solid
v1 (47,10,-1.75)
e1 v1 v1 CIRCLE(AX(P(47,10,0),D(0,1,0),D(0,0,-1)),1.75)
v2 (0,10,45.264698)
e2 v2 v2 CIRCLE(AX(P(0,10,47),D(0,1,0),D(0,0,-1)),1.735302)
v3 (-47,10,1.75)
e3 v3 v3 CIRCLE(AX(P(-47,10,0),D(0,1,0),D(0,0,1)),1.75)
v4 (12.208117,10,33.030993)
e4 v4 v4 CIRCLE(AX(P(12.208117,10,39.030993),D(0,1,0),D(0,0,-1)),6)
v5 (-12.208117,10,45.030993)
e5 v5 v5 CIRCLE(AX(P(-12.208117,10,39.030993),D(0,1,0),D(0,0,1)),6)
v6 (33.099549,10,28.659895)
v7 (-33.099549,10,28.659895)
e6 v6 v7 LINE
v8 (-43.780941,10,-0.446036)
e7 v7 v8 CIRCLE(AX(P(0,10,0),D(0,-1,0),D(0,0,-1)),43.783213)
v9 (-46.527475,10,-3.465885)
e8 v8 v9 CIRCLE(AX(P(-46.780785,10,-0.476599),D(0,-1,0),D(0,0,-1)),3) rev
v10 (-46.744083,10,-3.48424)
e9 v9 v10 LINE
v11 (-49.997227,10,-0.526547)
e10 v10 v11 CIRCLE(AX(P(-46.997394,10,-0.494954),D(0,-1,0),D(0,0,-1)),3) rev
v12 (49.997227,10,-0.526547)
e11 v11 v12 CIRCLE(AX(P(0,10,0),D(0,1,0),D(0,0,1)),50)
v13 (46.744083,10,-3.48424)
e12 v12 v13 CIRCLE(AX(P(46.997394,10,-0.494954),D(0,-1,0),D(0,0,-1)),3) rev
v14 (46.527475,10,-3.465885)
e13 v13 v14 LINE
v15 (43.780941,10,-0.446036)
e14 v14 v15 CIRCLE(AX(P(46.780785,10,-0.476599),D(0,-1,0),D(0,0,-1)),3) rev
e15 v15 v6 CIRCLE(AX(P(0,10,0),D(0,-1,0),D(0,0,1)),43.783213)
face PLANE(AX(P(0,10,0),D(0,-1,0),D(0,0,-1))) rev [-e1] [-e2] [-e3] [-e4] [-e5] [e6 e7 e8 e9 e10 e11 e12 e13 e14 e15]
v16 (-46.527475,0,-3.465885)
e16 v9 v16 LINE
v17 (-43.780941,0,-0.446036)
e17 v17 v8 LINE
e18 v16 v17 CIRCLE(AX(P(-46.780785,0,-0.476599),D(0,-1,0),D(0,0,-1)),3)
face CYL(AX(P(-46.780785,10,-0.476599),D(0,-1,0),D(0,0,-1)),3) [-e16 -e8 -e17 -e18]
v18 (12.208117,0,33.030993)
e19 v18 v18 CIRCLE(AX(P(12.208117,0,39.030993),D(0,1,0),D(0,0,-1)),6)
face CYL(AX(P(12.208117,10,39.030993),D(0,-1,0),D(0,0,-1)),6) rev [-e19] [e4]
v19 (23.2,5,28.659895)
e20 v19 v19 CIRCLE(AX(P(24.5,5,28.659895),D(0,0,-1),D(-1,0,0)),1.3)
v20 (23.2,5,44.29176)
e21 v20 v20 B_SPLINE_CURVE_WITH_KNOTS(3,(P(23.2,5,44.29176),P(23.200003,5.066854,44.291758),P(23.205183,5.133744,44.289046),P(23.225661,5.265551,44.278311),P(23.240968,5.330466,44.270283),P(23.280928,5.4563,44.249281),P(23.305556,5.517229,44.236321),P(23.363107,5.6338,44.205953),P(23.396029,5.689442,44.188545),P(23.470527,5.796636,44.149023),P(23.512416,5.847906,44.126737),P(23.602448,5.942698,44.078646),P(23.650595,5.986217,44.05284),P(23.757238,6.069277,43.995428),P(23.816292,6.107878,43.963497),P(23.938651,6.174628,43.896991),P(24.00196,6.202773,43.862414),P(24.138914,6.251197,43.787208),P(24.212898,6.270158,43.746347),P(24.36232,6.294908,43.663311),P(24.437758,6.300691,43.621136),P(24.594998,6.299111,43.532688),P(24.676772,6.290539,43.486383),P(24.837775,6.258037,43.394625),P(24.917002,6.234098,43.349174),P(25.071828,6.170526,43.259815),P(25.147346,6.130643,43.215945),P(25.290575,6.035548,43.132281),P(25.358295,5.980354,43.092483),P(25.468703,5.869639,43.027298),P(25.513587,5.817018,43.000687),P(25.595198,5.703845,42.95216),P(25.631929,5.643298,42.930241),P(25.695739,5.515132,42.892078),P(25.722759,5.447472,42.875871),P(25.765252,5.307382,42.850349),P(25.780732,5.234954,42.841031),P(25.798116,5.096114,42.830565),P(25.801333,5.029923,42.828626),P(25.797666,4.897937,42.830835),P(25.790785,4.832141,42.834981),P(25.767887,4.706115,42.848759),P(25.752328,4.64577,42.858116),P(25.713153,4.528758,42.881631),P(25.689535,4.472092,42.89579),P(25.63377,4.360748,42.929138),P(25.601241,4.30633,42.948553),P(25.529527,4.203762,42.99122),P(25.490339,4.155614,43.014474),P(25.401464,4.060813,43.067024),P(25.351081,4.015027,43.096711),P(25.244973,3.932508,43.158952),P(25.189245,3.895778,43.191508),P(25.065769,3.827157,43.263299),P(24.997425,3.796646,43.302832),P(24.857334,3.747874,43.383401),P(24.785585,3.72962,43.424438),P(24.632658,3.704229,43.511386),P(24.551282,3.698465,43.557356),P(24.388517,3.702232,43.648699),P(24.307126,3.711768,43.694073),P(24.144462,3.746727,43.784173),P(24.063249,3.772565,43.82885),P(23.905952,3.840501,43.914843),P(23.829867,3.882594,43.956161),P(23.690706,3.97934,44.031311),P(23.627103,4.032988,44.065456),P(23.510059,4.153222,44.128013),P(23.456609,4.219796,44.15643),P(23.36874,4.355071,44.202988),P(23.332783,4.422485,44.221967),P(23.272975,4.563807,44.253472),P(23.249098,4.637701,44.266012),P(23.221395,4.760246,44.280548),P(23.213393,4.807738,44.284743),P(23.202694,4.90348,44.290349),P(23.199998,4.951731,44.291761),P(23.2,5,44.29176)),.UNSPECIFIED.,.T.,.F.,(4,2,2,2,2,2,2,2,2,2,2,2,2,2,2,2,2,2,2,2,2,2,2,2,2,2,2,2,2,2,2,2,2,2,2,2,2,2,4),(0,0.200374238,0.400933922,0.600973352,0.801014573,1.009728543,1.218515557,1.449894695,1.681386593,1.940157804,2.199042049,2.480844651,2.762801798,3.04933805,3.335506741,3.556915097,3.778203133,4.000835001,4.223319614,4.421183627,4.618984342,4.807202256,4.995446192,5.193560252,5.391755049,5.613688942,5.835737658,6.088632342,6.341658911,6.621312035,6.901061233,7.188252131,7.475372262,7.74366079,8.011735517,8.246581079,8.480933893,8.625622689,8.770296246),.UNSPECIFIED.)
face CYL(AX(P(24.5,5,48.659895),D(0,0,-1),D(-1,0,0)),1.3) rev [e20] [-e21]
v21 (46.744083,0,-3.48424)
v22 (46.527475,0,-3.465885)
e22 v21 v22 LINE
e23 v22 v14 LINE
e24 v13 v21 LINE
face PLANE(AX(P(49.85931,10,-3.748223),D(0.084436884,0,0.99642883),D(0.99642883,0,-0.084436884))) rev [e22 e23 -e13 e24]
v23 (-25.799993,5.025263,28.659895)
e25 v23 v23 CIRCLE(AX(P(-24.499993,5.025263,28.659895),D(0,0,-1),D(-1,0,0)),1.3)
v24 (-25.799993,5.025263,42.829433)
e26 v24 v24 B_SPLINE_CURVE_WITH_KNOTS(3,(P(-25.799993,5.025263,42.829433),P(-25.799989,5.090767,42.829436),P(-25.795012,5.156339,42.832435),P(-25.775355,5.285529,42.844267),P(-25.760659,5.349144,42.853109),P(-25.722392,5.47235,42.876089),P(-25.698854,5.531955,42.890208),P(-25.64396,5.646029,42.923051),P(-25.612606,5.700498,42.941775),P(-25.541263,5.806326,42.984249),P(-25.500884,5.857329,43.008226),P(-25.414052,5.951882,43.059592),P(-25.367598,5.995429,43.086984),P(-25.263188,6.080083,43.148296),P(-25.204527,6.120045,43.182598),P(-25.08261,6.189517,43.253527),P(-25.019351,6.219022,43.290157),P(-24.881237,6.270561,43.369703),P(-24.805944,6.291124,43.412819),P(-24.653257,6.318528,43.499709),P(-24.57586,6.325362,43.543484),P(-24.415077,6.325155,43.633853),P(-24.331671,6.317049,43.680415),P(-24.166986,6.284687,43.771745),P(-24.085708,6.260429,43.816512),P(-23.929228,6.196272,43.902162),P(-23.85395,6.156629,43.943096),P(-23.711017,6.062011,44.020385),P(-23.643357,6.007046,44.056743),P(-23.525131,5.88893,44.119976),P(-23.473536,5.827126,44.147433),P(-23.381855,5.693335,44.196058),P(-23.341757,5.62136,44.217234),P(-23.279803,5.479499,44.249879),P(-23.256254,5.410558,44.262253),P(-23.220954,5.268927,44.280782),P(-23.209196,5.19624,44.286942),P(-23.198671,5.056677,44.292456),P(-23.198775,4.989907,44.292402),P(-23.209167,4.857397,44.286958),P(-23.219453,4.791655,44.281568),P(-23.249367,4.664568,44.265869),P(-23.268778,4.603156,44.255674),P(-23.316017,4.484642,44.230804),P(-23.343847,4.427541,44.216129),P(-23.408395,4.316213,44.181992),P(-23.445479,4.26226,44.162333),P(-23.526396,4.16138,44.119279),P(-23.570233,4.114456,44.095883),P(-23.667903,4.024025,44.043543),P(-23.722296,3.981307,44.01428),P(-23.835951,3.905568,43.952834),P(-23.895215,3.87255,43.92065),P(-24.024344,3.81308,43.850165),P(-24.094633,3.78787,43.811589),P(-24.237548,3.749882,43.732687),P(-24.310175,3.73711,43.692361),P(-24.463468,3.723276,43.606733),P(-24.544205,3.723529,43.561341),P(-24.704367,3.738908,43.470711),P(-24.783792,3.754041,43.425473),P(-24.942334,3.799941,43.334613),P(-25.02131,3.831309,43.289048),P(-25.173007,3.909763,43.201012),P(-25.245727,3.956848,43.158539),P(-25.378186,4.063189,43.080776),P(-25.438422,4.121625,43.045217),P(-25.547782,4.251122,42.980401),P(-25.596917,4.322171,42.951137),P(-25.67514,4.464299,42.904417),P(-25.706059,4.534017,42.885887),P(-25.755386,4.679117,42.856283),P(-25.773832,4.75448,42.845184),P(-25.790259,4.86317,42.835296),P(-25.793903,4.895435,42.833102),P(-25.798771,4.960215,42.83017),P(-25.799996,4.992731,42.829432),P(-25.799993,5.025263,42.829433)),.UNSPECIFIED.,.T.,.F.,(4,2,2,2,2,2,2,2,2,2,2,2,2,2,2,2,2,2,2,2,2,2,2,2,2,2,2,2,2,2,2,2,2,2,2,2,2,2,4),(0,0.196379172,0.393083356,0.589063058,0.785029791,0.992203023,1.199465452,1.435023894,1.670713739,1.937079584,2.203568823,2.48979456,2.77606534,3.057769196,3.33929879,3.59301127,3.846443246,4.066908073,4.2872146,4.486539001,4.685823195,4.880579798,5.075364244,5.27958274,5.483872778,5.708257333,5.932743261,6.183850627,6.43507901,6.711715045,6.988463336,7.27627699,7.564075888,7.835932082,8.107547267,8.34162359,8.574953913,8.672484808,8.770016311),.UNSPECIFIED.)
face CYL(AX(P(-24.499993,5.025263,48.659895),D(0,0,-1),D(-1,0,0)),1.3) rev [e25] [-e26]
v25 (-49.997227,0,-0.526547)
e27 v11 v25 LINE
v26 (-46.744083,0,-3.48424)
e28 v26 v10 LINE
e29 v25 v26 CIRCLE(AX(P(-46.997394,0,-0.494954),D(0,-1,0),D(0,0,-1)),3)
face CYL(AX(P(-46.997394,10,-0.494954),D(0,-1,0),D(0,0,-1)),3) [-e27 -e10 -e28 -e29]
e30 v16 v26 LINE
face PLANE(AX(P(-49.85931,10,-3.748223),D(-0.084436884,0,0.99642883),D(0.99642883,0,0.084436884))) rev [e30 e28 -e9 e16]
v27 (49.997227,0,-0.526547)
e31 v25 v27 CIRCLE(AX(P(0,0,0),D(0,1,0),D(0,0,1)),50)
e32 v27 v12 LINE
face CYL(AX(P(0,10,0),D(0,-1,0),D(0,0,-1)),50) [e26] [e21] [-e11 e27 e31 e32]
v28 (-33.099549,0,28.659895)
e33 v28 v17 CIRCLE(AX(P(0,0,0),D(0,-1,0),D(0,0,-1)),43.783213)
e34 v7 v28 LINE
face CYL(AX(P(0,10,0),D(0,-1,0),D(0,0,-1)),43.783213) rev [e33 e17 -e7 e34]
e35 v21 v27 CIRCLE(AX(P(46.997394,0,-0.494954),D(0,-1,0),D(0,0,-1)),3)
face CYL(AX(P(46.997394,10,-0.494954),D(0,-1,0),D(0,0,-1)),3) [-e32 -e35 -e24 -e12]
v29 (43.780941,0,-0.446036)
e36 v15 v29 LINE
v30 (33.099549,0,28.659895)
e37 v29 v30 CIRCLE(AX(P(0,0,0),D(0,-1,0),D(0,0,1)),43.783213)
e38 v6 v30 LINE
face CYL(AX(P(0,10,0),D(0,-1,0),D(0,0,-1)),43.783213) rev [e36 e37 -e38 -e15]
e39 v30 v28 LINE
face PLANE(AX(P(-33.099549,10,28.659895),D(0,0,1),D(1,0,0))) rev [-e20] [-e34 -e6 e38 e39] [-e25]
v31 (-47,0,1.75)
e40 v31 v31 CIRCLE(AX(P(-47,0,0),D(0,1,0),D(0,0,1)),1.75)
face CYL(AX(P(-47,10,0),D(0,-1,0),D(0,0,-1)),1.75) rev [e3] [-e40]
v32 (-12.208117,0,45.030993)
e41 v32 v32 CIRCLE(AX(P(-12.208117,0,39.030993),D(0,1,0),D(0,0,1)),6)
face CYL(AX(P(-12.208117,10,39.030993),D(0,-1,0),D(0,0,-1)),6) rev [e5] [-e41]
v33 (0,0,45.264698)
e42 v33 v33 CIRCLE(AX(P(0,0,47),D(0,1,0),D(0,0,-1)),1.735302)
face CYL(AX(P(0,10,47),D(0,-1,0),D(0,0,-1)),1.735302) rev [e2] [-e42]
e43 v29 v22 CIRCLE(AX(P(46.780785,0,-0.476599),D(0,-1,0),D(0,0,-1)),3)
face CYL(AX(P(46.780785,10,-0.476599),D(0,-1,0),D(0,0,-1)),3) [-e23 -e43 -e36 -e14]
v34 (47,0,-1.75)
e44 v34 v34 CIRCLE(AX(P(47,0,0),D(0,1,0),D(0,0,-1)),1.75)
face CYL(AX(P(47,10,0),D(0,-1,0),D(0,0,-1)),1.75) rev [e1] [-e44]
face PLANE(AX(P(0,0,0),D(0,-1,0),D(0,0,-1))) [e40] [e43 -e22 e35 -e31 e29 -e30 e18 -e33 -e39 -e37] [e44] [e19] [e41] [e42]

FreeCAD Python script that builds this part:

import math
import FreeCAD as App
import Part
import Sketcher
from FreeCAD import Vector
Q = App.Units.Quantity


def edges_at(feature, points):
    """Names of the edges that pass closest to the given points."""
    edges = feature.Shape.Edges
    near = lambda p: min(range(len(edges)), key=lambda i: edges[i].distToShape(Part.Vertex(*p))[0])
    return sorted({f"Edge{near(p) + 1}" for p in points})

doc = App.newDocument("Part")
body = doc.addObject("PartDesign::Body", "Body")

# Sketch on XZ plane
sketch1 = body.newObject("Sketcher::SketchObject", "Sketch")
sketch1.AttachmentSupport = (doc.getObject("XZ_Plane"), [""])
sketch1.MapMode = "FlatFace"
sketch1.addGeometry([
    Part.LineSegment(Vector(49.85931, -3.748223, 0), Vector(43.664405, -3.22327, 0)),  # 0
    Part.ArcOfCircle(Part.Circle(Vector(0, 0, 0), Vector(0, 0, 1), 43.783213), math.radians(-4.221869), math.radians(40.888295)),  # 1
    Part.LineSegment(Vector(33.099549, 28.659895, 0), Vector(-33.099549, 28.659895, 0)),  # 2
    Part.ArcOfCircle(Part.Circle(Vector(0, 0, 0), Vector(0, 0, 1), 43.783213), math.radians(139.111705), math.radians(184.221869)),  # 3
    Part.LineSegment(Vector(-43.664405, -3.22327, 0), Vector(-49.85931, -3.748223, 0)),  # 4
    Part.ArcOfCircle(Part.Circle(Vector(0, 0, 0), Vector(0, 0, 1), 50), math.radians(-4.299181), math.radians(184.299181)),  # 5
    Part.Circle(Vector(-12.208117, 39.030993, 0), Vector(0, 0, 1), 6),  # 6
    Part.Circle(Vector(0, 47, 0), Vector(0, 0, 1), 1.735302),  # 7
    Part.Circle(Vector(12.208117, 39.030993, 0), Vector(0, 0, 1), 6),  # 8
    Part.Circle(Vector(-47, 0, 0), Vector(0, 0, 1), 1.75),  # 9
    Part.Circle(Vector(47, 0, 0), Vector(0, 0, 1), 1.75),  # 10
], False)
sketch1.addConstraint([
    Sketcher.Constraint("Coincident", 0, 2, 1, 1),
    Sketcher.Constraint("Coincident", 1, 2, 2, 1),
    Sketcher.Constraint("Coincident", 2, 2, 3, 1),
    Sketcher.Constraint("Coincident", 3, 2, 4, 1),
    Sketcher.Constraint("Coincident", 4, 2, 5, 2),
    Sketcher.Constraint("Coincident", 5, 1, 0, 1),
    Sketcher.Constraint("Horizontal", 2),
    Sketcher.Constraint("Coincident", 1, 3, -1, 1),
    Sketcher.Constraint("Coincident", 3, 3, -1, 1),
    Sketcher.Constraint("Coincident", 5, 3, -1, 1),
    Sketcher.Constraint("Equal", 1, 3),
    Sketcher.Constraint("Equal", 6, 8),
    Sketcher.Constraint("Equal", 9, 10),
    Sketcher.Constraint("Symmetric", 9, 3, 10, 3, -1, 1),
    Sketcher.Constraint("Symmetric", 6, 3, 8, 3, -2),
    Sketcher.Constraint("PointOnObject", 7, 3, -2),
    Sketcher.Constraint("PointOnObject", 9, 3, -1),
    Sketcher.Constraint("Horizontal", 0, 2, 3, 2),
    Sketcher.Constraint("Horizontal", 4, 2, 5, 1),
    Sketcher.Constraint("Diameter", 6, Q("12 mm")),
    Sketcher.Constraint("Radius", 5, Q("50 mm")),
    Sketcher.Constraint("Diameter", 9, Q("3.5 mm")),
    Sketcher.Constraint("DistanceY", -1, 1, 7, 3, Q("47 mm")),
    Sketcher.Constraint("DistanceX", 9, 3, -1, 1, Q("47 mm")),
    Sketcher.Constraint("Diameter", 7, Q("3.470605 mm")),
    Sketcher.Constraint("DistanceX", 2, 2, 2, 1, Q("66.199098 mm")),
    Sketcher.Constraint("Radius", 1, Q("43.783213 mm")),
    Sketcher.Constraint("DistanceY", 0, 2, -1, 1, Q("3.22327 mm")),
    Sketcher.Constraint("DistanceX", 4, 2, -1, 1, Q("49.85931 mm")),
    Sketcher.Constraint("DistanceX", 8, 3, 1, 2, Q("20.891432 mm")),
    Sketcher.Constraint("DistanceY", -1, 1, 6, 3, Q("39.030993 mm")),
])
pad1 = body.newObject("PartDesign::Pad", "Pad")
pad1.Profile = sketch1
pad1.Length = 10
pad1.Reversed = True
doc.recompute()

fillet = body.newObject("PartDesign::Fillet", "Fillet")
fillet.Base = (pad1, edges_at(pad1, [
    (43.664, 5, -3.223),
    (49.859, 5, -3.748),
    (-49.859, 5, -3.748),
    (-43.664, 5, -3.223),
]))
fillet.Radius = 3

# Sketch on XY plane
sketch2 = body.newObject("Sketcher::SketchObject", "Sketch001")
sketch2.AttachmentSupport = (doc.getObject("XY_Plane"), [""])
sketch2.MapMode = "FlatFace"
sketch2.AttachmentOffset = App.Placement(Vector(0, 0, 28.659895), App.Rotation())
sketch2.addGeometry([
    Part.Circle(Vector(-24.499993, 5.025263, 0), Vector(0, 0, 1), 1.3),
    Part.Circle(Vector(24.5, 5, 0), Vector(0, 0, 1), 1.3),
], False)
sketch2.addConstraint([
    Sketcher.Constraint("Equal", 0, 1),
    Sketcher.Constraint("Diameter", 0, Q("2.6 mm")),
    Sketcher.Constraint("DistanceY", -1, 1, 1, 3, Q("5 mm")),
    Sketcher.Constraint("DistanceX", -1, 1, 1, 3, Q("24.5 mm")),
    Sketcher.Constraint("DistanceX", 0, 3, -1, 1, Q("24.499993 mm")),
    Sketcher.Constraint("DistanceY", -1, 1, 0, 3, Q("5.025263 mm")),
])
pocket1 = body.newObject("PartDesign::Pocket", "Pocket")
pocket1.Profile = sketch2
pocket1.Length = 20
pocket1.Reversed = True

doc.recompute()
